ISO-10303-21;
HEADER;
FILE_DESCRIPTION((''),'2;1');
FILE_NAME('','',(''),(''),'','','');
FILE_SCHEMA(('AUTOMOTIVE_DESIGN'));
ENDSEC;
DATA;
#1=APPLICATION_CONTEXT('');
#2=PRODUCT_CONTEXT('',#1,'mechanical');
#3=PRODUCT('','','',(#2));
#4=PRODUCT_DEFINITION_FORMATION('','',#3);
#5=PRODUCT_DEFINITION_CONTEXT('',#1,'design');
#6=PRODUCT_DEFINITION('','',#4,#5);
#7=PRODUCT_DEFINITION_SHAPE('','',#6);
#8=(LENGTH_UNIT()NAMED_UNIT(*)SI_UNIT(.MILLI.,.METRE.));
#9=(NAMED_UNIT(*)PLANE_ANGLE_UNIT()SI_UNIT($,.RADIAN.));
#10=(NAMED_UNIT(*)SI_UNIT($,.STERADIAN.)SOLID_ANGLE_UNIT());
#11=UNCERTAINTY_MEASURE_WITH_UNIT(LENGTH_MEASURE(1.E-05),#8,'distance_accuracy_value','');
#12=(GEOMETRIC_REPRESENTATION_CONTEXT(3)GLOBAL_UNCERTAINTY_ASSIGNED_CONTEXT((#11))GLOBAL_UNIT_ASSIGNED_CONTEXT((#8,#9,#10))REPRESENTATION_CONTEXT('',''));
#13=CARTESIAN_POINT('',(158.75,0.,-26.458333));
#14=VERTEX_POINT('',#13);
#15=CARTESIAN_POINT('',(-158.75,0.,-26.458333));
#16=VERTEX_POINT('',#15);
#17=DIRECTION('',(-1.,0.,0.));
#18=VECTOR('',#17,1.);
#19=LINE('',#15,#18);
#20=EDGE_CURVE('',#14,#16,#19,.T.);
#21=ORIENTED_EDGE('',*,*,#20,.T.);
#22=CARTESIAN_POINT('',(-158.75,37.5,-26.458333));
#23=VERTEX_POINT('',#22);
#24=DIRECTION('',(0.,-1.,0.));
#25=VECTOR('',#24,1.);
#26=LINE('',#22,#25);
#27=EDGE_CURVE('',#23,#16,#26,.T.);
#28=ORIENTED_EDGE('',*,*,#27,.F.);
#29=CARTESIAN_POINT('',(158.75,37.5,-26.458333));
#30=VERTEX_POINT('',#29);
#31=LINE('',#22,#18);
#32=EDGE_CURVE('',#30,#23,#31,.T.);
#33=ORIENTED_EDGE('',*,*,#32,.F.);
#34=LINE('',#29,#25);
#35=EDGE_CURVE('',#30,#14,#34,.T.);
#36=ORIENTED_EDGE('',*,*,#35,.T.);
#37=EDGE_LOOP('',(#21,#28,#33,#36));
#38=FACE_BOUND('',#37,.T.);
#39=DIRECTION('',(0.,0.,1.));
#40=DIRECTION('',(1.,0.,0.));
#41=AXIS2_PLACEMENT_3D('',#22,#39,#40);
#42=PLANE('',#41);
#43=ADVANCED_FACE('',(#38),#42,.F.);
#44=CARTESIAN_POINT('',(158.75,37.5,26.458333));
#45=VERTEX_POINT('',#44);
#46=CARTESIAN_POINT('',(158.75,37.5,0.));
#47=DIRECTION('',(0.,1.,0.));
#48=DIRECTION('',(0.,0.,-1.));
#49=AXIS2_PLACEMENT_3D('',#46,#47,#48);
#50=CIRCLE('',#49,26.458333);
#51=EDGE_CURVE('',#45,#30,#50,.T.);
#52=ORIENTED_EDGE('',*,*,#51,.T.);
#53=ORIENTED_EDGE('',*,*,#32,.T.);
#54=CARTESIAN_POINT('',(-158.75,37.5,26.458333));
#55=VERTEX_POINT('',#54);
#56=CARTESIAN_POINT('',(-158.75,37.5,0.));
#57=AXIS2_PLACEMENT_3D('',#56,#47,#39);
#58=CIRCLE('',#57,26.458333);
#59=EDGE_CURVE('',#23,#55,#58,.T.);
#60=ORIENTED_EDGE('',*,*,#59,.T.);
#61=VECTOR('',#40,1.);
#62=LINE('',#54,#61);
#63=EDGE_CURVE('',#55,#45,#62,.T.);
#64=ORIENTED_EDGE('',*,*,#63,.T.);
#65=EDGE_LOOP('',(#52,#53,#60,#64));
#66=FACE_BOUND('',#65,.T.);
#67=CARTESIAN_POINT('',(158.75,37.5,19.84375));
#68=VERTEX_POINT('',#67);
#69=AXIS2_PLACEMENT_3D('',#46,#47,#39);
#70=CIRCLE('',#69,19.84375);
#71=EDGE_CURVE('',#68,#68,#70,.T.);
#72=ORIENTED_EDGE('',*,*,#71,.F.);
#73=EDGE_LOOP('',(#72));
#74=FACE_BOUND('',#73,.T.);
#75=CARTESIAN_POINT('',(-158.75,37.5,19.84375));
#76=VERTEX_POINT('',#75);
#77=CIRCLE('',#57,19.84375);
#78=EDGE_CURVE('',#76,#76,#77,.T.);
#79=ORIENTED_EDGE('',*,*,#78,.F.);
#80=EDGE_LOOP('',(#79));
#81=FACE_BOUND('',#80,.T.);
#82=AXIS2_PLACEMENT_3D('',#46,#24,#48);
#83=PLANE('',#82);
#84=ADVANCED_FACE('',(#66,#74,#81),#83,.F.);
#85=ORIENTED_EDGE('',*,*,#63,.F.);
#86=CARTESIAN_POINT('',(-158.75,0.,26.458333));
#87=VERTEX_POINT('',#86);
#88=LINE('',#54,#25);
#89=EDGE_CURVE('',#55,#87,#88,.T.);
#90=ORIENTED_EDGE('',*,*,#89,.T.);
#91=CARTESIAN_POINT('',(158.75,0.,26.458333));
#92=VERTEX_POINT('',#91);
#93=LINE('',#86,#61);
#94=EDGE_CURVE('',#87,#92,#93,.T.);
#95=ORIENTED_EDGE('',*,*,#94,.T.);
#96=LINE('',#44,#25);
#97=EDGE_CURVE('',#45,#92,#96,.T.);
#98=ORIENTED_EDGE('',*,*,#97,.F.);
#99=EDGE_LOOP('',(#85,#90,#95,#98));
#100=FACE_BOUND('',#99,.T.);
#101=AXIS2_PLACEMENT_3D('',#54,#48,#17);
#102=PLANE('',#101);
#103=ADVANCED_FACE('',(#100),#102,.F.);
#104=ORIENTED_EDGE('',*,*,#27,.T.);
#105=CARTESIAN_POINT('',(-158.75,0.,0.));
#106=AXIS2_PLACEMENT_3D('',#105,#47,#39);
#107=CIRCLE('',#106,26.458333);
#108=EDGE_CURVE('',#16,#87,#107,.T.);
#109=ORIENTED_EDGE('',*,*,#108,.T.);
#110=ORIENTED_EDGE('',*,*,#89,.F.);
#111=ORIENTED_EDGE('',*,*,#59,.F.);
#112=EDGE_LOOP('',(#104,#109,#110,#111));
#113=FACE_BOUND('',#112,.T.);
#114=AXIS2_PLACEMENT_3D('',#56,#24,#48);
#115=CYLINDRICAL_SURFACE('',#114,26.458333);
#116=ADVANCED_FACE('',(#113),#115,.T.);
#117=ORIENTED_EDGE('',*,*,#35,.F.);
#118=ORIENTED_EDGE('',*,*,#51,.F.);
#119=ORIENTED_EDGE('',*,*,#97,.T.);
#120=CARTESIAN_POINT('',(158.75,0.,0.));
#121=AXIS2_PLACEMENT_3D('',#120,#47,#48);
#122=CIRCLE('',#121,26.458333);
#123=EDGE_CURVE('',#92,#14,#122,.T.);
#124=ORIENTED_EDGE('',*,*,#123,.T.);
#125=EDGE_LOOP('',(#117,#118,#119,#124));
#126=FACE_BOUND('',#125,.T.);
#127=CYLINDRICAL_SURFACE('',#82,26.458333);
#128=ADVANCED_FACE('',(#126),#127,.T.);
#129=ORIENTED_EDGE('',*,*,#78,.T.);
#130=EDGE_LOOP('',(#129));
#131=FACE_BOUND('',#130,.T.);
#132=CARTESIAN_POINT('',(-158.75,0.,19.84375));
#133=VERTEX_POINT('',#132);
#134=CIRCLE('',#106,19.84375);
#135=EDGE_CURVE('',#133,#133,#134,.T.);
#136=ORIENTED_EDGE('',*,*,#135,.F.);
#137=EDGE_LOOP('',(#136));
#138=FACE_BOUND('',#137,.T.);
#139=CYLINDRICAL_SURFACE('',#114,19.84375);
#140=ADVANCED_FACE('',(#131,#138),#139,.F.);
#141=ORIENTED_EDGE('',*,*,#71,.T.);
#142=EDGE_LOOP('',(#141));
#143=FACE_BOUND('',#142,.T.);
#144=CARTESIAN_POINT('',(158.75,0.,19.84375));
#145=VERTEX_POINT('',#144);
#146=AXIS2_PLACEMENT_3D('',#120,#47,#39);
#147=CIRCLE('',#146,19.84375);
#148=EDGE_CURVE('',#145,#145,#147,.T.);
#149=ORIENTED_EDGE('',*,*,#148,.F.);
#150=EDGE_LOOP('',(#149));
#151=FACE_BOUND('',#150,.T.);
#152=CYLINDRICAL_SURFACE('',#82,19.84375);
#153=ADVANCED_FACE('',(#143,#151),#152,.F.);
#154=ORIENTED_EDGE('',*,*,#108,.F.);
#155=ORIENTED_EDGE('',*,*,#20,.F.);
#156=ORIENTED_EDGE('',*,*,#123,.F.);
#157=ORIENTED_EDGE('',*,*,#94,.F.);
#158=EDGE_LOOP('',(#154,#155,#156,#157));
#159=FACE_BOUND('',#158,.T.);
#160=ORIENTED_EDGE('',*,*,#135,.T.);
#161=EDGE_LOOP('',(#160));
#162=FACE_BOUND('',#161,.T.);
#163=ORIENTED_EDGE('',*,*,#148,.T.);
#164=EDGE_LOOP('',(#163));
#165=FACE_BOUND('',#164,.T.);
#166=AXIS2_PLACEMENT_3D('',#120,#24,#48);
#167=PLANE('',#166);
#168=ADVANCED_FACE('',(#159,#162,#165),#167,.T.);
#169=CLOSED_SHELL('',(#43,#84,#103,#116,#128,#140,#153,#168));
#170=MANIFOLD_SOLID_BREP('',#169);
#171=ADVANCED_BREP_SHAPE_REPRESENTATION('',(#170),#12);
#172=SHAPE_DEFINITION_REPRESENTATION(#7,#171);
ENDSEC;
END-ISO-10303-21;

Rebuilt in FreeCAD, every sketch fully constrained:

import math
import FreeCAD as App
import Part
import Sketcher
Q = App.Units.Quantity

doc = App.newDocument("Part")
params = doc.addObject("Spreadsheet::Sheet", "Params")
for row, (alias, value) in enumerate([
    ("sketch1_diameter", "1.5625 in"),
    ("sketch1_width", "12.5 in"),
    ("pad1_length", "37.5 mm"),
], start=1):
    params.set(f"A{row}", alias)
    params.set(f"B{row}", "=" + value)
    params.setAlias(f"B{row}", alias)

body = doc.addObject("PartDesign::Body", "Body")

sketch1 = body.newObject("Sketcher::SketchObject", "Sketch")
sketch1.AttachmentSupport = (doc.getObject("XZ_Plane"), [""])
sketch1.MapMode = "FlatFace"
sketch1.addGeometry(Part.LineSegment(App.Vector(-159, 26, 0), App.Vector(159, 26, 0)), False)
sketch1.addGeometry(Part.ArcOfCircle(Part.Circle(App.Vector(159, 0, 0), App.Vector(0, 0, 1), 26), math.radians(-90), math.radians(90)), False)
sketch1.addGeometry(Part.LineSegment(App.Vector(159, -26, 0), App.Vector(-159, -26, 0)), False)
sketch1.addGeometry(Part.ArcOfCircle(Part.Circle(App.Vector(-159, 0, 0), App.Vector(0, 0, 1), 26), math.radians(90), math.radians(270)), False)
sketch1.addGeometry(Part.Circle(App.Vector(-159, 0, 0), App.Vector(0, 0, 1), 20), False)
sketch1.addGeometry(Part.Circle(App.Vector(159, 0, 0), App.Vector(0, 0, 1), 20), False)
sketch1.addConstraint(Sketcher.Constraint("Tangent", 0, 2, 1, 2))
sketch1.addConstraint(Sketcher.Constraint("Tangent", 1, 1, 2, 1))
sketch1.addConstraint(Sketcher.Constraint("Tangent", 2, 2, 3, 2))
sketch1.addConstraint(Sketcher.Constraint("Tangent", 3, 1, 0, 1))
sketch1.addConstraint(Sketcher.Constraint("Horizontal", 0))
sketch1.addConstraint(Sketcher.Constraint("Horizontal", 2))
sketch1.addConstraint(Sketcher.Constraint("Coincident", 4, 3, 3, 3))
sketch1.addConstraint(Sketcher.Constraint("Coincident", 5, 3, 1, 3))
sketch1.addConstraint(Sketcher.Constraint("Equal", 4, 5))
sketch1.addConstraint(Sketcher.Constraint("Symmetric", 1, 3, 3, 3, -1, 1))
sketch1.addConstraint(Sketcher.Constraint("Diameter", 4, Q("1.5625 in")))
sketch1.addConstraint(Sketcher.Constraint("DistanceX", 0, 1, 0, 2, Q("12.5 in")))
sketch1.addConstraint(Sketcher.Constraint("Radius", 1, Q("26.458333 mm")))
sketch1.setExpression("Constraints[10]", "Params.sketch1_diameter")
sketch1.setExpression("Constraints[11]", "Params.sketch1_width")
pad1 = body.newObject("PartDesign::Pad", "Pad")
pad1.Profile = sketch1
pad1.setExpression("Length", "Params.pad1_length")
pad1.Reversed = True

doc.recompute()
